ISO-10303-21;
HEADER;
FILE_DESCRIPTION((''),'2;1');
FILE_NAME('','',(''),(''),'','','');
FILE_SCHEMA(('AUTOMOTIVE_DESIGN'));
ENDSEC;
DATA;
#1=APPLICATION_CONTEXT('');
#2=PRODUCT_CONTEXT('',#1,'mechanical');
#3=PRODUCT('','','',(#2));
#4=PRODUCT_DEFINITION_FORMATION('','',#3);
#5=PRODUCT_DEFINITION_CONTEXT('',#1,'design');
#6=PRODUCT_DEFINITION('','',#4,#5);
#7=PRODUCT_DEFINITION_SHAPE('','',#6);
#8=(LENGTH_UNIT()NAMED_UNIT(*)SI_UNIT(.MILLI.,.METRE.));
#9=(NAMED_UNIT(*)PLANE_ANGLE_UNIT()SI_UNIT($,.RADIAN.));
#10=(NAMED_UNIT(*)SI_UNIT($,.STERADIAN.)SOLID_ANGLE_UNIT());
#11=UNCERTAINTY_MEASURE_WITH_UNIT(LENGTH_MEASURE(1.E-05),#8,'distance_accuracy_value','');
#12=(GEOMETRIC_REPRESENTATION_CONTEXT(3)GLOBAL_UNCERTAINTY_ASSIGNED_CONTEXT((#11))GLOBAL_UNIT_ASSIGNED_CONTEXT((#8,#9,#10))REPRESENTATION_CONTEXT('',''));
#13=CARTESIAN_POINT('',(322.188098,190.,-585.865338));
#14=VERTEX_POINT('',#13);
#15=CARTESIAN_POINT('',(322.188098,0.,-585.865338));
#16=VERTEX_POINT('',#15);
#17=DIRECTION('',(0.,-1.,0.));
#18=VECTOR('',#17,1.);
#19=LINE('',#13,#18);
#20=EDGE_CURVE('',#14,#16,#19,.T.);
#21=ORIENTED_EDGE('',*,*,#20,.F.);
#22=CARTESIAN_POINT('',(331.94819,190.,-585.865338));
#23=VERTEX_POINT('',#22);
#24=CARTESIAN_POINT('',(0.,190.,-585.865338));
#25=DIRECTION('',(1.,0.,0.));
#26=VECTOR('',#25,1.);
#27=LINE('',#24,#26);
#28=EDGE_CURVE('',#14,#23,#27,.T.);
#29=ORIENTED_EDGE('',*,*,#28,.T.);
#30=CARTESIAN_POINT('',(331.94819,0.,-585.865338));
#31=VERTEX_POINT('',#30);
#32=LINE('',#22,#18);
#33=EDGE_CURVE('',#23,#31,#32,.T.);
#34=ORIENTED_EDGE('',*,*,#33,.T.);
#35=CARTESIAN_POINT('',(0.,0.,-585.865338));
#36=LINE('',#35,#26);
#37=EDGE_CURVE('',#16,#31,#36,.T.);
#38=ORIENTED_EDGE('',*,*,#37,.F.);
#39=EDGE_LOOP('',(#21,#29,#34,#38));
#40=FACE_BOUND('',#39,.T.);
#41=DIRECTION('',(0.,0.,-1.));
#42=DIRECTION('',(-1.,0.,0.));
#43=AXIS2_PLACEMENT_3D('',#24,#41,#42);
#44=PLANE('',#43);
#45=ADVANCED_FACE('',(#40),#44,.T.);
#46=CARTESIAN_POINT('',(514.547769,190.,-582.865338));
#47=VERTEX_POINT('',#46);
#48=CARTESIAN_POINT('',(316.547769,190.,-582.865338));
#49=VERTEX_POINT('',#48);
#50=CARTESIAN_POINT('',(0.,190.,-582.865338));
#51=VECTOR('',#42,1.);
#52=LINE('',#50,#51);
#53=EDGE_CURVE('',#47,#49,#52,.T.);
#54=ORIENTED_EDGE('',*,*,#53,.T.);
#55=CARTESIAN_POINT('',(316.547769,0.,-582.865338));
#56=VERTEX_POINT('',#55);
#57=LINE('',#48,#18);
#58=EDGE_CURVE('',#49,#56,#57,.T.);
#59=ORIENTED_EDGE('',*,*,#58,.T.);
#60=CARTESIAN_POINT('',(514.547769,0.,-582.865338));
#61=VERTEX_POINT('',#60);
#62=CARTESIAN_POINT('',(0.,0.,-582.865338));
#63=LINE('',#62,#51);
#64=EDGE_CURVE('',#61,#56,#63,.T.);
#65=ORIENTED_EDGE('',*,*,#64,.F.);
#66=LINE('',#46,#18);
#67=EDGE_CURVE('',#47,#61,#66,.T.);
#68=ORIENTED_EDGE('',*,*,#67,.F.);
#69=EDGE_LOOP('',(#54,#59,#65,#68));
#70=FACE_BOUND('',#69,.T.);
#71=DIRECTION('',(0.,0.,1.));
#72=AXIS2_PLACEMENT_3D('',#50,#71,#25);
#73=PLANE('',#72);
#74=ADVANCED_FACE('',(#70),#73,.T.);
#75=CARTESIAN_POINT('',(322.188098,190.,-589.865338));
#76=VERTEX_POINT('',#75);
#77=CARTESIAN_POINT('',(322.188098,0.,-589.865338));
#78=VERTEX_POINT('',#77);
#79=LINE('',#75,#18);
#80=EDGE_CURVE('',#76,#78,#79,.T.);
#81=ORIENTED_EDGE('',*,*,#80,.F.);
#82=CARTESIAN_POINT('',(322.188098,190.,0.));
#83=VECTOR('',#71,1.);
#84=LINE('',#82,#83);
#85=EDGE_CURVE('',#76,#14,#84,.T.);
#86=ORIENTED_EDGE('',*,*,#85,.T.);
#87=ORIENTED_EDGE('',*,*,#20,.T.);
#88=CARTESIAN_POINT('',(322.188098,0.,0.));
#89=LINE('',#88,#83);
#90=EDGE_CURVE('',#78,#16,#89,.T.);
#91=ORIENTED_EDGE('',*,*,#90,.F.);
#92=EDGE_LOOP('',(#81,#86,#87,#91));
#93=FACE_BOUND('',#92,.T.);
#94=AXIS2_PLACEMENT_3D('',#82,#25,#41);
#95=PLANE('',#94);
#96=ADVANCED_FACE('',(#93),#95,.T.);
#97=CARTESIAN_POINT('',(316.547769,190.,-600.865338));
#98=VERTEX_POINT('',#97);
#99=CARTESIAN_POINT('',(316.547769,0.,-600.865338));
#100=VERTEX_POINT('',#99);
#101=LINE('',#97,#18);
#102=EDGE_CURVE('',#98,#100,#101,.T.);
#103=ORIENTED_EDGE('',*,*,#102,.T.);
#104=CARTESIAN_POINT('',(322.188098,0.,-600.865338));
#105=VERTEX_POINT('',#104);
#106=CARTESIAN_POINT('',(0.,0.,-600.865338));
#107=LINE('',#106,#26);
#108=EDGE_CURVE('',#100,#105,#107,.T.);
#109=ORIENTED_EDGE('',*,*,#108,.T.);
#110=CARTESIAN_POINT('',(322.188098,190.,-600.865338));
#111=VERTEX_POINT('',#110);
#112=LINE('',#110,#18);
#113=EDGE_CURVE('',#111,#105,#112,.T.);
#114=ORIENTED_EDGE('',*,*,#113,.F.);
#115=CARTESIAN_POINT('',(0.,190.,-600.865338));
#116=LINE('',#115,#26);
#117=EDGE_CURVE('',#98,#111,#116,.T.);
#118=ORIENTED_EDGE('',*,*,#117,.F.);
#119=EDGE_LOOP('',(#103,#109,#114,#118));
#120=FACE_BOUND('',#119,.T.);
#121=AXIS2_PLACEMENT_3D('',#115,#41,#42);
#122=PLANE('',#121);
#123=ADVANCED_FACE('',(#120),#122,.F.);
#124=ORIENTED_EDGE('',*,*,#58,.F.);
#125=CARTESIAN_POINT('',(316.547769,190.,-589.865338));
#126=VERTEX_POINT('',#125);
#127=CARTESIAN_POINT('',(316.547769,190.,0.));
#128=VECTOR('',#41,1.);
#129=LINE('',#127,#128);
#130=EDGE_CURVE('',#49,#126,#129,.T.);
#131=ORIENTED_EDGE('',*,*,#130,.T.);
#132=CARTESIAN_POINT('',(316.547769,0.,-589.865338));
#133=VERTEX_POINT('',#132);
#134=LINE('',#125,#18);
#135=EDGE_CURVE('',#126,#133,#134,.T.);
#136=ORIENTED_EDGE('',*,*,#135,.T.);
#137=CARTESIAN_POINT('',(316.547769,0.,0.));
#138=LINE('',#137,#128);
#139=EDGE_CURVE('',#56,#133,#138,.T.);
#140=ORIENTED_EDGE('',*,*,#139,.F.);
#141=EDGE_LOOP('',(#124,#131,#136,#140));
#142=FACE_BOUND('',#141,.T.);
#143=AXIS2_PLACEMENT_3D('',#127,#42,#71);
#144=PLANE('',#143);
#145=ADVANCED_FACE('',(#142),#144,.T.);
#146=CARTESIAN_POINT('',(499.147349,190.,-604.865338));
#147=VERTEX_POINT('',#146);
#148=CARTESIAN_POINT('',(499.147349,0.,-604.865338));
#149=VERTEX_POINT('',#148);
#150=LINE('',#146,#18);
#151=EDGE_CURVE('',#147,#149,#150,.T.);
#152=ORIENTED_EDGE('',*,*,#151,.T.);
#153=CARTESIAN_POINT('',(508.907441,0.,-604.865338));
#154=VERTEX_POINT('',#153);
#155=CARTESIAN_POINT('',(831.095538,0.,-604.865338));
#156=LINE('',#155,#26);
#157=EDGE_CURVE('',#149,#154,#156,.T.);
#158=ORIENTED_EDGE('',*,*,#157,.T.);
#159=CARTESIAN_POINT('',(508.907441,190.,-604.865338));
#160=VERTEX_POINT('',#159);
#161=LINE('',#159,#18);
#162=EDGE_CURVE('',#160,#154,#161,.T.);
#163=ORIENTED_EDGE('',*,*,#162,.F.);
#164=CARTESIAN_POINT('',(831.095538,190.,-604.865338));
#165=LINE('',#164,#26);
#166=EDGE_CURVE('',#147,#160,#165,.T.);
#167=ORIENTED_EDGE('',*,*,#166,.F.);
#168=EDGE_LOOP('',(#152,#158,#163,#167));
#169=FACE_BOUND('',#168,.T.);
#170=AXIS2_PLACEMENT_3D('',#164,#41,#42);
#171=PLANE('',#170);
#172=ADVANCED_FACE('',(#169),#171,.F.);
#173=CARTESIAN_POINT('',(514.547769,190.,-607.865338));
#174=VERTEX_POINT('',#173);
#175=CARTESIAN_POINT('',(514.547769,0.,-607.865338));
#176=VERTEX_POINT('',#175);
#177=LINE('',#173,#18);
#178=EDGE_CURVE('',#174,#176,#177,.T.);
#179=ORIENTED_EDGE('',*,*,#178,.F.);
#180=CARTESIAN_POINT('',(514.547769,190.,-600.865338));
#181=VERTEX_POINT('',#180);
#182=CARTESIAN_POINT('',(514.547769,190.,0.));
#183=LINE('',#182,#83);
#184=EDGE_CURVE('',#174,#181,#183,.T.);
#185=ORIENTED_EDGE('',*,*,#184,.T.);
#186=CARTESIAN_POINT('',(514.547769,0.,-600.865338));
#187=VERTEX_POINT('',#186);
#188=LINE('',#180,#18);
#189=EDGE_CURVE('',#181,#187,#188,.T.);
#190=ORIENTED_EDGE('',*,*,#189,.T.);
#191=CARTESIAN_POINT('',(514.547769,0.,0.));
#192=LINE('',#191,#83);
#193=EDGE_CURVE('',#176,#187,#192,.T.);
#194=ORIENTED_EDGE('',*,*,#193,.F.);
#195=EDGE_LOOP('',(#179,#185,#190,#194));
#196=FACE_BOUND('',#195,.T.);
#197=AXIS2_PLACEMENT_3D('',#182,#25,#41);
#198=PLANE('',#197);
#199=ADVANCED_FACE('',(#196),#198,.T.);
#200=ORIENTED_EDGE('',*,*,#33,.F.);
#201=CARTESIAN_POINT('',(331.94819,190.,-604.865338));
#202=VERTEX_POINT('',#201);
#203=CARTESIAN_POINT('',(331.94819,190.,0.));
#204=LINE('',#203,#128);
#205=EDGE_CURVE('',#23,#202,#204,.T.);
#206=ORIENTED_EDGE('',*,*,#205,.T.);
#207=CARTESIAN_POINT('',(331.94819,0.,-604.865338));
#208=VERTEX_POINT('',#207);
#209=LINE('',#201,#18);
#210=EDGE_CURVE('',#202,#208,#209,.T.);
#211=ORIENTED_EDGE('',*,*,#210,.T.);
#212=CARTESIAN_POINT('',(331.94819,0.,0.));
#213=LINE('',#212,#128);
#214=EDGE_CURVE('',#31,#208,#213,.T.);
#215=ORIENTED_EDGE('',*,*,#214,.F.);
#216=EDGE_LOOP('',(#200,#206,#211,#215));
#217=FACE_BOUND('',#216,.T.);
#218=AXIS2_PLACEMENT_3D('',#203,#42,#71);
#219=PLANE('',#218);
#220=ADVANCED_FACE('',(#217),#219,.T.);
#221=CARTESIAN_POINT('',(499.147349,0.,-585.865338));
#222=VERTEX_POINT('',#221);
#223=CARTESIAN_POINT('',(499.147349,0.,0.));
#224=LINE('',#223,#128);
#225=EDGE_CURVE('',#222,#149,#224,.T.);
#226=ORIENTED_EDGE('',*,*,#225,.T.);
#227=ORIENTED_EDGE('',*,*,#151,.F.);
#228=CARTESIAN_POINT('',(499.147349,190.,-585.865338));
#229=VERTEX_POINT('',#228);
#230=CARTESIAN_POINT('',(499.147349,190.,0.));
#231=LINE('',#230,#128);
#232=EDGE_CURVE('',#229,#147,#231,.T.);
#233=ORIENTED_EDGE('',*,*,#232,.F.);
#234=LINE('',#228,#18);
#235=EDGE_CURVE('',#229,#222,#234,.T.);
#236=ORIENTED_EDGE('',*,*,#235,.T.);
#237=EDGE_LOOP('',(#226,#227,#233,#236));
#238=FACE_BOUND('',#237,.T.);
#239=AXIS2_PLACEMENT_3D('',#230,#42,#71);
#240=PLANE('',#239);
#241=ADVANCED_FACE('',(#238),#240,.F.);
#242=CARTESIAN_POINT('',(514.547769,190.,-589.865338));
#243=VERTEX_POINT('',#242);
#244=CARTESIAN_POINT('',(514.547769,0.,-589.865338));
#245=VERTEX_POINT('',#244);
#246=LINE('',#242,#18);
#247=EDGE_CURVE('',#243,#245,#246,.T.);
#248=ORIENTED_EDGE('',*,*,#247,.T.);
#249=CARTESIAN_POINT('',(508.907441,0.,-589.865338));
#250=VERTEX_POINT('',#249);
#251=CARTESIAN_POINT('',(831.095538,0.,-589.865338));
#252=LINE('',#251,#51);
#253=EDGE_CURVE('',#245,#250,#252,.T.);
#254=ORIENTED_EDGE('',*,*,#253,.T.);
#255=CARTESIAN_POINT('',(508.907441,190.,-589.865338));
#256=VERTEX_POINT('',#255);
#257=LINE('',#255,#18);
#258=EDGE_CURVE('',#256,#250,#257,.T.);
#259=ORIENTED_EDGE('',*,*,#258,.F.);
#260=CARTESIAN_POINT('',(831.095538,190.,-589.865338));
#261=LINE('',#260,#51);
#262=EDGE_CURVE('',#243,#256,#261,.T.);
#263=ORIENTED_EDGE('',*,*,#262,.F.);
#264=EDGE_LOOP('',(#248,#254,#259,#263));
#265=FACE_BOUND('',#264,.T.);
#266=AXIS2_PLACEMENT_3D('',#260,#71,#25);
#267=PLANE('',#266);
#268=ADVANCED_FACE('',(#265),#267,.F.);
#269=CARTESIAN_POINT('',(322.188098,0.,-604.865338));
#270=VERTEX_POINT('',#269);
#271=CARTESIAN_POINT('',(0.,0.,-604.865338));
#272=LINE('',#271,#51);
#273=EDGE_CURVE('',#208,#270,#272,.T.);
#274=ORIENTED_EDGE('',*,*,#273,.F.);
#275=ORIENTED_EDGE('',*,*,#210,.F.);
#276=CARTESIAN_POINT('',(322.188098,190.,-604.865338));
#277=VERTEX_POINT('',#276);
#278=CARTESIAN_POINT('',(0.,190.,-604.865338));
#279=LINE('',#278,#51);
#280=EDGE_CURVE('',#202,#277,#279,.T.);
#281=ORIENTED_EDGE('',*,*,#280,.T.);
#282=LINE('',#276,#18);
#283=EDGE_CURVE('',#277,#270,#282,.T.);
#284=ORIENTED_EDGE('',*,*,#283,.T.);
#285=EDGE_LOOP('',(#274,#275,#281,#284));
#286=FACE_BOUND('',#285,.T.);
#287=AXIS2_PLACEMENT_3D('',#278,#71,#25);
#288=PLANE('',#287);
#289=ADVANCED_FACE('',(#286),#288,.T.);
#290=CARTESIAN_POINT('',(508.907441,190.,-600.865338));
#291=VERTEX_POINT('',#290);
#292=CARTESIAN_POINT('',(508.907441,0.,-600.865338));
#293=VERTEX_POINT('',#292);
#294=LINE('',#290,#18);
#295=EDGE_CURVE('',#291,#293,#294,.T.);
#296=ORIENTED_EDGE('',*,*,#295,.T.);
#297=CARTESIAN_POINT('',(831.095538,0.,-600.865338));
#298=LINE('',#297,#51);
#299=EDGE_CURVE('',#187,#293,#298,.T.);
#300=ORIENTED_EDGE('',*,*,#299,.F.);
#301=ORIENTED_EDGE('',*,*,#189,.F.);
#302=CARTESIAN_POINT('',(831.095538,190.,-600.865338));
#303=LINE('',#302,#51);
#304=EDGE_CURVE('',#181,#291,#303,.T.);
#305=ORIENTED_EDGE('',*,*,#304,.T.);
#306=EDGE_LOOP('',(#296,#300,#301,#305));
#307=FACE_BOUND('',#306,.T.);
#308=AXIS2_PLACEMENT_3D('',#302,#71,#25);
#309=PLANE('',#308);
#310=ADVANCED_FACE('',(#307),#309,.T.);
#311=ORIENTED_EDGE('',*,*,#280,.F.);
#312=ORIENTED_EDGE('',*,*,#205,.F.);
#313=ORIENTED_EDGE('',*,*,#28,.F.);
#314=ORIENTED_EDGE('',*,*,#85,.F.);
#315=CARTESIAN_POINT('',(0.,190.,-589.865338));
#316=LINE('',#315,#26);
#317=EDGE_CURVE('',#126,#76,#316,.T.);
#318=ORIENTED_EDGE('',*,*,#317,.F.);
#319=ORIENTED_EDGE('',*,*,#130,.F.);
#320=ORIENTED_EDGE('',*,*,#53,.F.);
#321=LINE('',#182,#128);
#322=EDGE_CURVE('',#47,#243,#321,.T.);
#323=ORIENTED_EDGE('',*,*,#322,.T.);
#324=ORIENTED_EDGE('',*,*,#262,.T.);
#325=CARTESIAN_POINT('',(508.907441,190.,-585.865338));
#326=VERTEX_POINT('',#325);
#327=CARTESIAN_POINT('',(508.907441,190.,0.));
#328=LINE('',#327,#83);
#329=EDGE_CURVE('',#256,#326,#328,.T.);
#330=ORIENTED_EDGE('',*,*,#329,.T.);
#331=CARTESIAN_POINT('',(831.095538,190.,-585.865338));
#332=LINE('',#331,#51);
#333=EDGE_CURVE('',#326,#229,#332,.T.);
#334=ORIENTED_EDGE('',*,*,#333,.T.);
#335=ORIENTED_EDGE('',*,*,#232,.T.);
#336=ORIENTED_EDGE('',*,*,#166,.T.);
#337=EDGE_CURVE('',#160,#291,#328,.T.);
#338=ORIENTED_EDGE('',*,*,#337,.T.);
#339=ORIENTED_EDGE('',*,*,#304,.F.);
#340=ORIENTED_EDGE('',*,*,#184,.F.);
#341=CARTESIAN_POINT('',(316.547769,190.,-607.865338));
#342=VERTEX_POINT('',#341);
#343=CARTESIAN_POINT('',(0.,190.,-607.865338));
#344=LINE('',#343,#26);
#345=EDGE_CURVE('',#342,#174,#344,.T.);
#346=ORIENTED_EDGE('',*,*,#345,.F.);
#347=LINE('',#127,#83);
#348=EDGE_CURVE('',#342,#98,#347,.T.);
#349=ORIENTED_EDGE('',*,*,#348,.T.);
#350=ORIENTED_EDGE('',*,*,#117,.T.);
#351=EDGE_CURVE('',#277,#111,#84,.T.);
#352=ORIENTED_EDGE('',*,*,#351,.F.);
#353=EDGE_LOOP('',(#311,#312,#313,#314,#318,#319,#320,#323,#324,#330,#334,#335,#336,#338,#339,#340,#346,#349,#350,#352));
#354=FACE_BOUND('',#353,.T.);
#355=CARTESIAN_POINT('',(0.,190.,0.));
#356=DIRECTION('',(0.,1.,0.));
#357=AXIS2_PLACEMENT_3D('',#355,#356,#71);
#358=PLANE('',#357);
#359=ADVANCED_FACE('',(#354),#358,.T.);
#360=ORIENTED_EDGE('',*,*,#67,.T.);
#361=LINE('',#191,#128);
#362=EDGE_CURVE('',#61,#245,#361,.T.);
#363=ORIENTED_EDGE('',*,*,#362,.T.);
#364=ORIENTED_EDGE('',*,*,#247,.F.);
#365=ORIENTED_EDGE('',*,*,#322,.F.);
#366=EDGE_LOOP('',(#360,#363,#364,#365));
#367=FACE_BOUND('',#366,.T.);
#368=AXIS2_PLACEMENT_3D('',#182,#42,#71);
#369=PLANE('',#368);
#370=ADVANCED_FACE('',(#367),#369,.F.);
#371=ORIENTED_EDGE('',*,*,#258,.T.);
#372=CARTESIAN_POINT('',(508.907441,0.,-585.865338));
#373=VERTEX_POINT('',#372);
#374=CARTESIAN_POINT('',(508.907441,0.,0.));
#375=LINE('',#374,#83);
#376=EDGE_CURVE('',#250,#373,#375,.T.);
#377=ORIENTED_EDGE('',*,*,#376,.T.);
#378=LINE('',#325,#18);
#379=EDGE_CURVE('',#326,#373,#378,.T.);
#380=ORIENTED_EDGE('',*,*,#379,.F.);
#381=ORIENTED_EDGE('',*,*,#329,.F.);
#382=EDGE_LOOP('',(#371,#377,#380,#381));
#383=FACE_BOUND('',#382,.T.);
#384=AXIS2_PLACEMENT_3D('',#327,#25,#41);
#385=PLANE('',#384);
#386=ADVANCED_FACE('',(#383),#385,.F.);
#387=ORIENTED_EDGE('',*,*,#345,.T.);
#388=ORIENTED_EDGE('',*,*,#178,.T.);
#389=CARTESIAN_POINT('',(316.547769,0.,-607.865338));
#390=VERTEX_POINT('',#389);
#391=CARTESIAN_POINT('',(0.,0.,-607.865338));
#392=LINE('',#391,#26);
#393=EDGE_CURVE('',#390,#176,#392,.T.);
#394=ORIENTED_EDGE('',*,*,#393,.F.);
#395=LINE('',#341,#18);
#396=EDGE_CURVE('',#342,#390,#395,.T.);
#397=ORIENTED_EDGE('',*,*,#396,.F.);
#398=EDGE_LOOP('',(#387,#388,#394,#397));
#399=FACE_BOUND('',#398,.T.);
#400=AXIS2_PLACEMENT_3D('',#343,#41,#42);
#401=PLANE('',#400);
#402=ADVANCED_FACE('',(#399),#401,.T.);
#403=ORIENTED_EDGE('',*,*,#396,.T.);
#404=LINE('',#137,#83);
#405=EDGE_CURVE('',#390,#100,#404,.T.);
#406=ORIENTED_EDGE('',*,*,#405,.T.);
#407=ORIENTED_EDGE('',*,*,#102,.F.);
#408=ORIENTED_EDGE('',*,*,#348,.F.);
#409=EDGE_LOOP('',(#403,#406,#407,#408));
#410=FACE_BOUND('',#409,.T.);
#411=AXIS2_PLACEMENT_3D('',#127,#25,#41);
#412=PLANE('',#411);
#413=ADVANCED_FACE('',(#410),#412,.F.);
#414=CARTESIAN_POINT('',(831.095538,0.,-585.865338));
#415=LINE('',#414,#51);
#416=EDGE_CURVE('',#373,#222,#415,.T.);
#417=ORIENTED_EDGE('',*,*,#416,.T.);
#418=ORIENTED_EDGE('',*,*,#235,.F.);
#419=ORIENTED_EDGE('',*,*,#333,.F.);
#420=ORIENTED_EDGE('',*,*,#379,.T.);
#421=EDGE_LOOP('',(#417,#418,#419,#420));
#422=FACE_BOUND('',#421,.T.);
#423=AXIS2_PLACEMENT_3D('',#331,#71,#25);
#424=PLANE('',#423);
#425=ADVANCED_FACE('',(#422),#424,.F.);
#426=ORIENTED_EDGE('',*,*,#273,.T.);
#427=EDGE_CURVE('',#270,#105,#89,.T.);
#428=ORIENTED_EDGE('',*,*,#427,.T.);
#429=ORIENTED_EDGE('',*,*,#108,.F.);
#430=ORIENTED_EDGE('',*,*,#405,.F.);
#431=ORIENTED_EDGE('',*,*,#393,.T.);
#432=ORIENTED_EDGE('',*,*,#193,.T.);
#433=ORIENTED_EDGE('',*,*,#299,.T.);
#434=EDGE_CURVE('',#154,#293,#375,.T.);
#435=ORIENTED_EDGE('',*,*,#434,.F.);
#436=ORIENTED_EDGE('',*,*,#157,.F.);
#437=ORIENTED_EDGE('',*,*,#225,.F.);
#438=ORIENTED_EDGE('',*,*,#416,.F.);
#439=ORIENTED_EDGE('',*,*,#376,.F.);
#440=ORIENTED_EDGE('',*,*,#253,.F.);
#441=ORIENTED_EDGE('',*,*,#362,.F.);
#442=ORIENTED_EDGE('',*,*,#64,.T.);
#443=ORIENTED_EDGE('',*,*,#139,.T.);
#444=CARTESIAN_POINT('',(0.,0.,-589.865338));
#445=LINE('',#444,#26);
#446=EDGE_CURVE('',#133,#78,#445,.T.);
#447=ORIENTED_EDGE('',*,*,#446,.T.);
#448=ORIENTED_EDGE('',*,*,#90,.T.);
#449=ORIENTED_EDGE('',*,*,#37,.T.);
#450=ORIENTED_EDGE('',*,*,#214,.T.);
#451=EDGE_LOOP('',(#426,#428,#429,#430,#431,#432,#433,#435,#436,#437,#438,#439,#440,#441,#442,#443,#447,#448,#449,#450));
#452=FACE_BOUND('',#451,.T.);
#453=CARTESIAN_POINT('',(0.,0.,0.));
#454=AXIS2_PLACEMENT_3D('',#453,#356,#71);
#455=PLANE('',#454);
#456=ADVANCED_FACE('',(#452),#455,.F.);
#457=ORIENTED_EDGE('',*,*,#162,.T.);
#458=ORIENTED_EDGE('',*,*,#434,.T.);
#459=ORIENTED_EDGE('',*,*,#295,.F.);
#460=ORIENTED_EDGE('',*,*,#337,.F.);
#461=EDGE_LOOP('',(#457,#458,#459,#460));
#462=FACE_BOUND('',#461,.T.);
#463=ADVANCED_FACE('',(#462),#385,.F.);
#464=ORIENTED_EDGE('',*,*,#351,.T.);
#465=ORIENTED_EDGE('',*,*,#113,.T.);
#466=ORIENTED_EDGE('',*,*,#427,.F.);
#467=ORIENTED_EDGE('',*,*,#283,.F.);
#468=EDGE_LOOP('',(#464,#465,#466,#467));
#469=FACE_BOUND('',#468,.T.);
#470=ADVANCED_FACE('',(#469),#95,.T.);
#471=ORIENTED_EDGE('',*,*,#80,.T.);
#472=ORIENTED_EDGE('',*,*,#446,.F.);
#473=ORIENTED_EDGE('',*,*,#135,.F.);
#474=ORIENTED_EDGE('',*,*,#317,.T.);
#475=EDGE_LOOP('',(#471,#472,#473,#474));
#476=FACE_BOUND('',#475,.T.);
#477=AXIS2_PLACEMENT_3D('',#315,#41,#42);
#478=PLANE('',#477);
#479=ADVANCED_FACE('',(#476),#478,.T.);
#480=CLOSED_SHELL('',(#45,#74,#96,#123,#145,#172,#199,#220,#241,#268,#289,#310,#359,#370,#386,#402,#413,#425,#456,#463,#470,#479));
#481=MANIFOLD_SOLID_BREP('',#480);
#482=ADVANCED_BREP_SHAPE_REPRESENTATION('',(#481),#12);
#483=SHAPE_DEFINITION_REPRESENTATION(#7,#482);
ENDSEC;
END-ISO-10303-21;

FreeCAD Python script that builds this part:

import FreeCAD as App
import Part
import Sketcher
from FreeCAD import Vector
Q = App.Units.Quantity


def add_polygon(sketch, points):
    """Adds a closed chain of lines whose ends are joined by coincident constraints."""
    first, n = sketch.GeometryCount, len(points)
    for a, b in zip(points, points[1:] + points[:1]):
        sketch.addGeometry(Part.LineSegment(App.Vector(*a, 0), App.Vector(*b, 0)), False)
    for i in range(n):
        sketch.addConstraint(Sketcher.Constraint("Coincident", first + i, 2, first + (i + 1) % n, 1))

doc = App.newDocument("Part")
params = doc.addObject("Spreadsheet::Sheet", "Params")
for row, (alias, value) in enumerate([
    ("sketch1_width", "99 mm"),
    ("sketch1_height", "7 mm"),
    ("sketch1_height2", "4 mm"),
    ("sketch1_height3", "19 mm"),
    ("pad1_length", "190 mm"),
], start=1):
    params.set(f"A{row}", alias)
    params.set(f"B{row}", "=" + value)
    params.setAlias(f"B{row}", alias)

body = doc.addObject("PartDesign::Body", "Body")

# Sketch on XZ plane
sketch1 = body.newObject("Sketcher::SketchObject", "Sketch")
sketch1.AttachmentSupport = (doc.getObject("XZ_Plane"), [""])
sketch1.MapMode = "FlatFace"
add_polygon(sketch1, [(415.547769, -607.865338), (316.547769, -607.865338), (316.547769, -600.865338), (322.188098, -600.865338), (322.188098, -604.865338), (331.94819, -604.865338), (331.94819, -585.865338), (322.188098, -585.865338), (322.188098, -589.865338), (316.547769, -589.865338), (316.547769, -582.865338), (415.547769, -582.865338)])  # lines 0-11
sketch1.addConstraint(Sketcher.Constraint("Horizontal", 0))
sketch1.addConstraint(Sketcher.Constraint("Vertical", 1))
sketch1.addConstraint(Sketcher.Constraint("Horizontal", 2))
sketch1.addConstraint(Sketcher.Constraint("Vertical", 3))
sketch1.addConstraint(Sketcher.Constraint("Horizontal", 4))
sketch1.addConstraint(Sketcher.Constraint("Vertical", 5))
sketch1.addConstraint(Sketcher.Constraint("Horizontal", 6))
sketch1.addConstraint(Sketcher.Constraint("Vertical", 7))
sketch1.addConstraint(Sketcher.Constraint("Horizontal", 8))
sketch1.addConstraint(Sketcher.Constraint("Vertical", 9))
sketch1.addConstraint(Sketcher.Constraint("Horizontal", 10))
sketch1.addConstraint(Sketcher.Constraint("Vertical", 11))
sketch1.addConstraint(Sketcher.Constraint("Vertical", 3, 2, 6, 2))
sketch1.addConstraint(Sketcher.Constraint("Vertical", 1, 2, 8, 2))
sketch1.addConstraint(Sketcher.Constraint("Equal", 3, 7))
sketch1.addConstraint(Sketcher.Constraint("Equal", 1, 9))
sketch1.addConstraint(Sketcher.Constraint("DistanceX", 0, 2, 0, 1, Q("99 mm")))
sketch1.addConstraint(Sketcher.Constraint("DistanceY", 1, 1, 1, 2, Q("7 mm")))
sketch1.addConstraint(Sketcher.Constraint("DistanceY", 3, 2, 3, 1, Q("4 mm")))
sketch1.addConstraint(Sketcher.Constraint("DistanceY", 5, 1, 5, 2, Q("19 mm")))
sketch1.addConstraint(Sketcher.Constraint("DistanceX", 2, 1, 2, 2, Q("5.640328 mm")))
sketch1.addConstraint(Sketcher.Constraint("DistanceX", 4, 1, 4, 2, Q("9.760092 mm")))
sketch1.addConstraint(Sketcher.Constraint("DistanceX", -1, 1, 0, 2, Q("316.547769 mm")))
sketch1.addConstraint(Sketcher.Constraint("DistanceY", 0, 2, -1, 1, Q("607.865338 mm")))
sketch1.setExpression("Constraints[28]", "Params.sketch1_width")
sketch1.setExpression("Constraints[29]", "Params.sketch1_height")
sketch1.setExpression("Constraints[30]", "Params.sketch1_height2")
sketch1.setExpression("Constraints[31]", "Params.sketch1_height3")
pad1 = body.newObject("PartDesign::Pad", "Pad")
pad1.Profile = sketch1
pad1.setExpression("Length", "Params.pad1_length")
pad1.Reversed = True
doc.recompute()

datumplane = body.newObject("PartDesign::Plane", "DatumPlane")
datumplane.AttachmentSupport = (doc.getObject("YZ_Plane"), [""])
datumplane.MapMode = "FlatFace"
datumplane.AttachmentOffset = App.Placement(Vector(0, 0, 415.547769), App.Rotation())
mirrored = body.newObject("PartDesign::Mirrored", "Mirrored")
mirrored.Originals = [pad1]
mirrored.MirrorPlane = (datumplane, [""])
body.Tip = mirrored

doc.recompute()
